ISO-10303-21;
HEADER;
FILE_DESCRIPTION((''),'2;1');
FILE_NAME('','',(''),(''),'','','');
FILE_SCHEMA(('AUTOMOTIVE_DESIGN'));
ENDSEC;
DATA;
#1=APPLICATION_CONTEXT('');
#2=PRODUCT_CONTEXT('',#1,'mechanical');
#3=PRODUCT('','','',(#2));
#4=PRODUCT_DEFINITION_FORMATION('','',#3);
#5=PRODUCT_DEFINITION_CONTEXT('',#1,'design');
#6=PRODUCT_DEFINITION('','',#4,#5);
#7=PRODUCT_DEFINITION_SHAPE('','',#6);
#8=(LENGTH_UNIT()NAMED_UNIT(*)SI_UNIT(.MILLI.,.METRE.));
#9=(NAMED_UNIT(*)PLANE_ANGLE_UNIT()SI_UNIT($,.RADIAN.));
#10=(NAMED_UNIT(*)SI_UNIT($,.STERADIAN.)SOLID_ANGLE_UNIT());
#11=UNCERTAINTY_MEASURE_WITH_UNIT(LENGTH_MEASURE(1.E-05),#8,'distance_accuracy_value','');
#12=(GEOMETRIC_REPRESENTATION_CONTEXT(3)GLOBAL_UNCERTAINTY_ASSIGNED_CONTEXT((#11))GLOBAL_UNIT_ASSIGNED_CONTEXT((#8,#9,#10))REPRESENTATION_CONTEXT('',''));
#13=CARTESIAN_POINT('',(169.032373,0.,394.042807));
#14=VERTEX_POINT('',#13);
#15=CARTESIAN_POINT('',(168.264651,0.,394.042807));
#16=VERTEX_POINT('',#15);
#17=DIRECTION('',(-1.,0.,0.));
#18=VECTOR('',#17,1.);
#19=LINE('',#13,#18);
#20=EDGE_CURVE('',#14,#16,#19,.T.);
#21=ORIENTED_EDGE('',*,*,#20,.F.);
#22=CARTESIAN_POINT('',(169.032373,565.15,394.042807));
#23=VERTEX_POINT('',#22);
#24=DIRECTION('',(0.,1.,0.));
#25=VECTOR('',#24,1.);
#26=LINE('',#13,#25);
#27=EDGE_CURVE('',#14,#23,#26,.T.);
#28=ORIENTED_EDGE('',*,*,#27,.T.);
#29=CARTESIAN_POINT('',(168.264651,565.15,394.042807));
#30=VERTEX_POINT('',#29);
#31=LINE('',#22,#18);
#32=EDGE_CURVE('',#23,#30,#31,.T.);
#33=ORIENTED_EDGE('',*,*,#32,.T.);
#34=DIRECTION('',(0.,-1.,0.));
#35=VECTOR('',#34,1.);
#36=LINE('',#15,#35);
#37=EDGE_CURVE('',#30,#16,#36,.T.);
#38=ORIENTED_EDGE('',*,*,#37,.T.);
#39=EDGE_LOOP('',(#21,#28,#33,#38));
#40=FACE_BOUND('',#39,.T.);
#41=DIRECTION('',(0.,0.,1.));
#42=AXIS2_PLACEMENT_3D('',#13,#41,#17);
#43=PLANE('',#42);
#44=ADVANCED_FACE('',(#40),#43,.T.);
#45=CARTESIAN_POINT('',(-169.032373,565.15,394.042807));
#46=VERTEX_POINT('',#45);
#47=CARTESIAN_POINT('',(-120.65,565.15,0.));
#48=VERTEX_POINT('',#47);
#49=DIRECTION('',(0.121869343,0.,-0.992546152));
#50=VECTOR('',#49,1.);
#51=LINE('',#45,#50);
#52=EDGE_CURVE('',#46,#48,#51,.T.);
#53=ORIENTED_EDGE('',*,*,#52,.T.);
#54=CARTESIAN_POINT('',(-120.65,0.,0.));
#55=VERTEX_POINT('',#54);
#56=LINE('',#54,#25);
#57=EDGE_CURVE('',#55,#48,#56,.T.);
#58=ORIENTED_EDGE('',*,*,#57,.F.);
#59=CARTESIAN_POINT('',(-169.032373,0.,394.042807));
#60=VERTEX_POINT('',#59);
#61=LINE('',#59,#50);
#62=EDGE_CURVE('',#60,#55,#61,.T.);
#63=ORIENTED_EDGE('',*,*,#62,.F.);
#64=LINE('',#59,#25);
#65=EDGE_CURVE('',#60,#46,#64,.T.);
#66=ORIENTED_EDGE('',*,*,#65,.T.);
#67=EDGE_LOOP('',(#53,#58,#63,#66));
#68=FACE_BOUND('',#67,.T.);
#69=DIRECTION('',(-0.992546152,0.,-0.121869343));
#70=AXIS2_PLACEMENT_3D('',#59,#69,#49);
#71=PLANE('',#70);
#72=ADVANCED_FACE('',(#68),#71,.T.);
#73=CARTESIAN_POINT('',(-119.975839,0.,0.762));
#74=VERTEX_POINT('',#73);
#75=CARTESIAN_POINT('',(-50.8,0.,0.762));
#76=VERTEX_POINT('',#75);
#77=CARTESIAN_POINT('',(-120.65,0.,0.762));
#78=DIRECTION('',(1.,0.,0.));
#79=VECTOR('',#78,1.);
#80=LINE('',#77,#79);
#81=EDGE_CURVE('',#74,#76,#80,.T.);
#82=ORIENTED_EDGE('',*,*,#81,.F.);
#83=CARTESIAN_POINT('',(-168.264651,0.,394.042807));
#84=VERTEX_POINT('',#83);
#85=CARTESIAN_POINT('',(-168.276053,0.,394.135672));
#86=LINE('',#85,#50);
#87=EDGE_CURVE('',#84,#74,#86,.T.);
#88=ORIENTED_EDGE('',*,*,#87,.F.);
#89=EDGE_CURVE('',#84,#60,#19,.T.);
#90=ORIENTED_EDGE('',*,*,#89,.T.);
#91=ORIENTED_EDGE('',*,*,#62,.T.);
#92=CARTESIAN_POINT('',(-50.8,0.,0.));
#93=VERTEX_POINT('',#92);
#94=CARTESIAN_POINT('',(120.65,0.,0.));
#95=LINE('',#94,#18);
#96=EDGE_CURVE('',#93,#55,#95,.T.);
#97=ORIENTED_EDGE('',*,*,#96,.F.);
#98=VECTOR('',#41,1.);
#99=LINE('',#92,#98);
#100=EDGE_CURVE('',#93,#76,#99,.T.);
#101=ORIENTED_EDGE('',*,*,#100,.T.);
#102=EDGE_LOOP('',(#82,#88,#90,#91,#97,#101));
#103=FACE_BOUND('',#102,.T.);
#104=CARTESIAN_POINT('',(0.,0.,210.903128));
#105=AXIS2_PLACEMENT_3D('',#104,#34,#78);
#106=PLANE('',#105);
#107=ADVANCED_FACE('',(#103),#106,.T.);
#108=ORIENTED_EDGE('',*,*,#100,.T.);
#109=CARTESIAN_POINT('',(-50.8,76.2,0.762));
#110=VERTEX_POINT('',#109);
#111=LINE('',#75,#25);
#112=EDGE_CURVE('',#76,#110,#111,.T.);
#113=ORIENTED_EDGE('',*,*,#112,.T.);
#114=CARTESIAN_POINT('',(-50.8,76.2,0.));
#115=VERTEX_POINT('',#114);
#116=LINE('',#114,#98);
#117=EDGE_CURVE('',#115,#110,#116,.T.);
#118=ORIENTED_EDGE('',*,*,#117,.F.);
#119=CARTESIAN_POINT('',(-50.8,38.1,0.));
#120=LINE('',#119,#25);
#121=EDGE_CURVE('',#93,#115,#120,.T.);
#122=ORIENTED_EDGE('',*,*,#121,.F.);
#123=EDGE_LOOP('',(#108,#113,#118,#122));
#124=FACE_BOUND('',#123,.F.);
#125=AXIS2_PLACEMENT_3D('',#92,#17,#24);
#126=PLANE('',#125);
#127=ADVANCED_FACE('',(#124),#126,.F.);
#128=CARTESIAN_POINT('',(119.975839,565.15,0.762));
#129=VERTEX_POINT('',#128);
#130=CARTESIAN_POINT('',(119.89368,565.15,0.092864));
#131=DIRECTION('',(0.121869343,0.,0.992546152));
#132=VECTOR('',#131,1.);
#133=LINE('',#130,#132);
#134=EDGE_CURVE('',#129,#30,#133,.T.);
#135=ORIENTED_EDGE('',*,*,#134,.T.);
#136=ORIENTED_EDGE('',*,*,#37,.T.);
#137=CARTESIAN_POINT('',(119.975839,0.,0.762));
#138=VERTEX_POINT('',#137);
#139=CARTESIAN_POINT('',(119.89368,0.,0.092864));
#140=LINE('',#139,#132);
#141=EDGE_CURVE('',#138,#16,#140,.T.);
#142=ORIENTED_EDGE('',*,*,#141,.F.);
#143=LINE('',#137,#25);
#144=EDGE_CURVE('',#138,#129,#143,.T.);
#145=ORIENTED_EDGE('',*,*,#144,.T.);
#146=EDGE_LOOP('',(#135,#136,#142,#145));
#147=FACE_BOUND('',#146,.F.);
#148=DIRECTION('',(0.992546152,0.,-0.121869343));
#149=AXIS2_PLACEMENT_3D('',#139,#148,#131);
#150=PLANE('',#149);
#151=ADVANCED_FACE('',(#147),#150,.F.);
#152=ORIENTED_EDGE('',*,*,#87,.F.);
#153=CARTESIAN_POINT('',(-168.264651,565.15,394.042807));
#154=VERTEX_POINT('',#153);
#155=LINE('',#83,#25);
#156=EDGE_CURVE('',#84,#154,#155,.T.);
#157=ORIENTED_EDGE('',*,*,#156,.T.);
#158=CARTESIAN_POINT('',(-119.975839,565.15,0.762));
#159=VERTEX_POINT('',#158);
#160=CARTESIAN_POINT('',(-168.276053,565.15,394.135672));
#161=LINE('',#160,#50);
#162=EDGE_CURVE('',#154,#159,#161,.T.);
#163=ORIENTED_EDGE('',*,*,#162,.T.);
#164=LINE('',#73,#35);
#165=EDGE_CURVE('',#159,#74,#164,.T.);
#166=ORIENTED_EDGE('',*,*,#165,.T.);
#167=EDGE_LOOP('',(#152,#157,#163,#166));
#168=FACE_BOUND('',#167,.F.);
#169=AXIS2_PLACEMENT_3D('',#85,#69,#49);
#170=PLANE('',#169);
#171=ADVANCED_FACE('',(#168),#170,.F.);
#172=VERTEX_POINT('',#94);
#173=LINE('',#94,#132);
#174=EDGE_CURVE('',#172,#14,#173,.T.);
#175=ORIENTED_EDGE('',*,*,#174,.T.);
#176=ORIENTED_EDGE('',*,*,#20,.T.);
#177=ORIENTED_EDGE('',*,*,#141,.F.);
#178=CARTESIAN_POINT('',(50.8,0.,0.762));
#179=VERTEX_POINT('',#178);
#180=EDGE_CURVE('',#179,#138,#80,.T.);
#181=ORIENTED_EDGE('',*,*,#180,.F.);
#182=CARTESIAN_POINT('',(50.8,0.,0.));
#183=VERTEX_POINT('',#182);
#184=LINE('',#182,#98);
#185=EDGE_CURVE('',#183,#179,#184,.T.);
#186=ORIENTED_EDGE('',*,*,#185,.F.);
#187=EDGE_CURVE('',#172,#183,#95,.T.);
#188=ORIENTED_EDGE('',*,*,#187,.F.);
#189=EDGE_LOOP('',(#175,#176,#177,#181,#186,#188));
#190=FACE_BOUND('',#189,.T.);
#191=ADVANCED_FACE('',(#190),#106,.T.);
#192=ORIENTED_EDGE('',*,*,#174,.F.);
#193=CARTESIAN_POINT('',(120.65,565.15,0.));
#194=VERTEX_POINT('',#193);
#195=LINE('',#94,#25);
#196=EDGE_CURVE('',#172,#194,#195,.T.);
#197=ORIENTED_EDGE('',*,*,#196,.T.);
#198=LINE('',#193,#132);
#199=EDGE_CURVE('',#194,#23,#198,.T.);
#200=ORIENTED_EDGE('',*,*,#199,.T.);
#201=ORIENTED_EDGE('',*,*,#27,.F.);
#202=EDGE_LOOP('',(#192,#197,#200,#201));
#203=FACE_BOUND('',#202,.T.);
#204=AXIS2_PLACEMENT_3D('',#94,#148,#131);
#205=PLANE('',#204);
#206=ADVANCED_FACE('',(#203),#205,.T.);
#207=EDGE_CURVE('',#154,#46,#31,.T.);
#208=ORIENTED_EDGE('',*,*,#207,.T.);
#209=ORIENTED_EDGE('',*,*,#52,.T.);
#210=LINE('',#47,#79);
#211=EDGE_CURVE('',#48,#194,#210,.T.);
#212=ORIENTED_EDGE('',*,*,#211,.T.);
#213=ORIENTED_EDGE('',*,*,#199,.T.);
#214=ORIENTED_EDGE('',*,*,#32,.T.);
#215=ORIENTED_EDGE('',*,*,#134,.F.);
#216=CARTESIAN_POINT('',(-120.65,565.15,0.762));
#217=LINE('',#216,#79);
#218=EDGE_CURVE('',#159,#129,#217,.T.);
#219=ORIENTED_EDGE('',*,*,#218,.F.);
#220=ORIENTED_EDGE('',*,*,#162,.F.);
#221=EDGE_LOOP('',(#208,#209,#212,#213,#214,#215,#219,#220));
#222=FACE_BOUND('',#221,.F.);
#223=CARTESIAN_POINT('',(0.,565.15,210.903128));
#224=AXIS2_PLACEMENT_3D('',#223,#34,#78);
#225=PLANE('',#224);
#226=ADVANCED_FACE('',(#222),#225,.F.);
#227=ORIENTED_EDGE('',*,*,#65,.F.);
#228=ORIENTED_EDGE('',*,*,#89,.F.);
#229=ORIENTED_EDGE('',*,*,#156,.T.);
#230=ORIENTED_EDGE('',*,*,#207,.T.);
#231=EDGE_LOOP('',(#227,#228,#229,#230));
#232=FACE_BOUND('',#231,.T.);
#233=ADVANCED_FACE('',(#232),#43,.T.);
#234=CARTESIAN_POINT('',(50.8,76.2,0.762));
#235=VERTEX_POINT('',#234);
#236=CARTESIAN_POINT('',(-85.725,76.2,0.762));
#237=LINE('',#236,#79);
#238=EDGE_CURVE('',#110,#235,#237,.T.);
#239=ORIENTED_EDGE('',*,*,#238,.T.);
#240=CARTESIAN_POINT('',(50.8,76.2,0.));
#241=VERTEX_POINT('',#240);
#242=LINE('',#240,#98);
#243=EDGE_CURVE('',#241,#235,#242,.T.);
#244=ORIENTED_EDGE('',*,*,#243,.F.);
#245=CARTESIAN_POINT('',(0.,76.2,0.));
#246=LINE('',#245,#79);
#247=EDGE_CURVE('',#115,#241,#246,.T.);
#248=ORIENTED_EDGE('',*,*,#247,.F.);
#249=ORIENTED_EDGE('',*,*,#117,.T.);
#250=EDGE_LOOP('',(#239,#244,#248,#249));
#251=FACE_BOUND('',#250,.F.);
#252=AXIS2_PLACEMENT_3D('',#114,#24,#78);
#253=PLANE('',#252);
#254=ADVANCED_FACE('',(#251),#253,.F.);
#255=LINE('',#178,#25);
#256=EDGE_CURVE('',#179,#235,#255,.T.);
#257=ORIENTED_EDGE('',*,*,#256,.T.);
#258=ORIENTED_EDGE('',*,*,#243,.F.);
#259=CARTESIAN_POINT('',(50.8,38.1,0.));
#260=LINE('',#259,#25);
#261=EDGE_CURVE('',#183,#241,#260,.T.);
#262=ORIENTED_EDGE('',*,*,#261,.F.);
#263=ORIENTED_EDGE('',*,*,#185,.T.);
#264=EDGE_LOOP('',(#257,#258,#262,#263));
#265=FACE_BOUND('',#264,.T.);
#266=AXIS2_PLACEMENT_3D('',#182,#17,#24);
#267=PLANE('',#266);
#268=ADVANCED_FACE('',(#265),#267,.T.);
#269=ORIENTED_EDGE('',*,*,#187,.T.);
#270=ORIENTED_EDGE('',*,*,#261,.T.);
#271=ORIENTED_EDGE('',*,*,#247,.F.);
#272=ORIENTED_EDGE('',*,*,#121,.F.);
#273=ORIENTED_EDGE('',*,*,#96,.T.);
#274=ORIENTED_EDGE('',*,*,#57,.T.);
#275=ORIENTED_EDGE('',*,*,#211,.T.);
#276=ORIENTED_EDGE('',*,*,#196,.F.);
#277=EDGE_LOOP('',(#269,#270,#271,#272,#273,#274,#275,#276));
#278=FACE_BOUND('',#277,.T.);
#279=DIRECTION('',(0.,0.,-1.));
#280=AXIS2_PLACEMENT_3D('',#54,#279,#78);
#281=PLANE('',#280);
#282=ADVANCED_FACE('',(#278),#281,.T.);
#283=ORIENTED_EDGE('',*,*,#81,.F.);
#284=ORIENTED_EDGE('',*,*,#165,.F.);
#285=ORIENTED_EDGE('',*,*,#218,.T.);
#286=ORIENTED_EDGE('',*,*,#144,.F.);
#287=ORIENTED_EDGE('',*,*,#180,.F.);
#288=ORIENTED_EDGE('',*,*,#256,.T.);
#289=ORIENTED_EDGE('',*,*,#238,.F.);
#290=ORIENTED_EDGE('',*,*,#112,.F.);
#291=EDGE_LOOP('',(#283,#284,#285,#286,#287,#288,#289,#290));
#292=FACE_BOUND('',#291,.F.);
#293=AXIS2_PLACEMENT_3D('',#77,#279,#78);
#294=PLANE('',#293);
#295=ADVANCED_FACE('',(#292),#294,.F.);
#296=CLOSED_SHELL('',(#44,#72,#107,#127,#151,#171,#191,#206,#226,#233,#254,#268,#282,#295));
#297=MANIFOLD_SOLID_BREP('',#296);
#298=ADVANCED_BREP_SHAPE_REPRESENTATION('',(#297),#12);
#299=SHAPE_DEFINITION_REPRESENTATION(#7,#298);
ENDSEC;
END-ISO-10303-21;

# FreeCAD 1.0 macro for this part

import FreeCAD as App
import Part
import Sketcher
Q = App.Units.Quantity


def faces_at(feature, points):
    """Names of the faces that lie closest to the given points."""
    faces = feature.Shape.Faces
    near = lambda p: min(range(len(faces)), key=lambda i: faces[i].distToShape(Part.Vertex(*p))[0])
    return sorted({f"Face{near(p) + 1}" for p in points})

doc = App.newDocument("Part")
body = doc.addObject("PartDesign::Body", "Body")

# Sketch on XZ plane
sketch1 = doc.addObject("Sketcher::SketchObject", "Sketch")
body.addObject(sketch1)
sketch1.AttachmentSupport = (doc.XZ_Plane, [""])
sketch1.MapMode = "FlatFace"
sketch1.addGeometry(Part.LineSegment(App.Vector(-121, 0, 0), App.Vector(121, 0, 0)), False)
sketch1.addGeometry(Part.LineSegment(App.Vector(121, 0, 0), App.Vector(169, 394, 0)), False)
sketch1.addGeometry(Part.LineSegment(App.Vector(169, 394, 0), App.Vector(-169, 394, 0)), False)
sketch1.addGeometry(Part.LineSegment(App.Vector(-169, 394, 0), App.Vector(-121, 0, 0)), False)
sketch1.addConstraint(Sketcher.Constraint("Coincident", 0, 2, 1, 1))
sketch1.addConstraint(Sketcher.Constraint("Coincident", 1, 2, 2, 1))
sketch1.addConstraint(Sketcher.Constraint("Coincident", 2, 2, 3, 1))
sketch1.addConstraint(Sketcher.Constraint("Coincident", 3, 2, 0, 1))
sketch1.addConstraint(Sketcher.Constraint("Horizontal", 0))
sketch1.addConstraint(Sketcher.Constraint("Horizontal", 2))
sketch1.addConstraint(Sketcher.Constraint("Symmetric", 0, 2, 3, 2, -1, 1))
sketch1.addConstraint(Sketcher.Constraint("Equal", 1, 3))
sketch1.addConstraint(Sketcher.Constraint("DistanceX", 0, 1, 0, 2, Q("9.5 in")))
sketch1.addConstraint(Sketcher.Constraint("Angle", 1, Q("83 deg")))
sketch1.addConstraint(Sketcher.Constraint("Distance", 1, Q("15.63 in")))
pad1 = doc.addObject("PartDesign::Pad", "Pad")
body.addObject(pad1)
pad1.Profile = sketch1
pad1.Length = Q("22.25 in")
pad1.Reversed = True
doc.recompute()

thickness = doc.addObject("PartDesign::Thickness", "Thickness")
body.addObject(thickness)
thickness.Base = (pad1, faces_at(pad1, [(0, 0, 197.021), (0, 282.575, 394.043), (0, 565.15, 197.021)]))
thickness.Value = Q("0.03 in")
thickness.Reversed = True
thickness.Join = "Arc"

# Sketch on XY plane
sketch2 = doc.addObject("Sketcher::SketchObject", "Sketch001")
body.addObject(sketch2)
sketch2.AttachmentSupport = (doc.XY_Plane, [""])
sketch2.MapMode = "FlatFace"
sketch2.addGeometry(Part.LineSegment(App.Vector(-51, 76, 0), App.Vector(-51, 0, 0)), False)
sketch2.addGeometry(Part.LineSegment(App.Vector(-51, 0, 0), App.Vector(51, 0, 0)), False)
sketch2.addGeometry(Part.LineSegment(App.Vector(51, 0, 0), App.Vector(51, 76, 0)), False)
sketch2.addGeometry(Part.LineSegment(App.Vector(51, 76, 0), App.Vector(-51, 76, 0)), False)
sketch2.addConstraint(Sketcher.Constraint("Coincident", 0, 2, 1, 1))
sketch2.addConstraint(Sketcher.Constraint("Coincident", 1, 2, 2, 1))
sketch2.addConstraint(Sketcher.Constraint("Coincident", 2, 2, 3, 1))
sketch2.addConstraint(Sketcher.Constraint("Coincident", 3, 2, 0, 1))
sketch2.addConstraint(Sketcher.Constraint("Vertical", 0))
sketch2.addConstraint(Sketcher.Constraint("Horizontal", 1))
sketch2.addConstraint(Sketcher.Constraint("Vertical", 2))
sketch2.addConstraint(Sketcher.Constraint("Horizontal", 3))
sketch2.addConstraint(Sketcher.Constraint("Symmetric", 0, 2, 1, 2, -1, 1))
sketch2.addConstraint(Sketcher.Constraint("DistanceX", 1, 1, 1, 2, Q("4 in")))
sketch2.addConstraint(Sketcher.Constraint("DistanceY", 0, 2, 0, 1, Q("3 in")))
pocket1 = doc.addObject("PartDesign::Pocket", "Pocket")
body.addObject(pocket1)
pocket1.Profile = sketch2
pocket1.Type = "ThroughAll"
pocket1.Midplane = True

doc.recompute()
